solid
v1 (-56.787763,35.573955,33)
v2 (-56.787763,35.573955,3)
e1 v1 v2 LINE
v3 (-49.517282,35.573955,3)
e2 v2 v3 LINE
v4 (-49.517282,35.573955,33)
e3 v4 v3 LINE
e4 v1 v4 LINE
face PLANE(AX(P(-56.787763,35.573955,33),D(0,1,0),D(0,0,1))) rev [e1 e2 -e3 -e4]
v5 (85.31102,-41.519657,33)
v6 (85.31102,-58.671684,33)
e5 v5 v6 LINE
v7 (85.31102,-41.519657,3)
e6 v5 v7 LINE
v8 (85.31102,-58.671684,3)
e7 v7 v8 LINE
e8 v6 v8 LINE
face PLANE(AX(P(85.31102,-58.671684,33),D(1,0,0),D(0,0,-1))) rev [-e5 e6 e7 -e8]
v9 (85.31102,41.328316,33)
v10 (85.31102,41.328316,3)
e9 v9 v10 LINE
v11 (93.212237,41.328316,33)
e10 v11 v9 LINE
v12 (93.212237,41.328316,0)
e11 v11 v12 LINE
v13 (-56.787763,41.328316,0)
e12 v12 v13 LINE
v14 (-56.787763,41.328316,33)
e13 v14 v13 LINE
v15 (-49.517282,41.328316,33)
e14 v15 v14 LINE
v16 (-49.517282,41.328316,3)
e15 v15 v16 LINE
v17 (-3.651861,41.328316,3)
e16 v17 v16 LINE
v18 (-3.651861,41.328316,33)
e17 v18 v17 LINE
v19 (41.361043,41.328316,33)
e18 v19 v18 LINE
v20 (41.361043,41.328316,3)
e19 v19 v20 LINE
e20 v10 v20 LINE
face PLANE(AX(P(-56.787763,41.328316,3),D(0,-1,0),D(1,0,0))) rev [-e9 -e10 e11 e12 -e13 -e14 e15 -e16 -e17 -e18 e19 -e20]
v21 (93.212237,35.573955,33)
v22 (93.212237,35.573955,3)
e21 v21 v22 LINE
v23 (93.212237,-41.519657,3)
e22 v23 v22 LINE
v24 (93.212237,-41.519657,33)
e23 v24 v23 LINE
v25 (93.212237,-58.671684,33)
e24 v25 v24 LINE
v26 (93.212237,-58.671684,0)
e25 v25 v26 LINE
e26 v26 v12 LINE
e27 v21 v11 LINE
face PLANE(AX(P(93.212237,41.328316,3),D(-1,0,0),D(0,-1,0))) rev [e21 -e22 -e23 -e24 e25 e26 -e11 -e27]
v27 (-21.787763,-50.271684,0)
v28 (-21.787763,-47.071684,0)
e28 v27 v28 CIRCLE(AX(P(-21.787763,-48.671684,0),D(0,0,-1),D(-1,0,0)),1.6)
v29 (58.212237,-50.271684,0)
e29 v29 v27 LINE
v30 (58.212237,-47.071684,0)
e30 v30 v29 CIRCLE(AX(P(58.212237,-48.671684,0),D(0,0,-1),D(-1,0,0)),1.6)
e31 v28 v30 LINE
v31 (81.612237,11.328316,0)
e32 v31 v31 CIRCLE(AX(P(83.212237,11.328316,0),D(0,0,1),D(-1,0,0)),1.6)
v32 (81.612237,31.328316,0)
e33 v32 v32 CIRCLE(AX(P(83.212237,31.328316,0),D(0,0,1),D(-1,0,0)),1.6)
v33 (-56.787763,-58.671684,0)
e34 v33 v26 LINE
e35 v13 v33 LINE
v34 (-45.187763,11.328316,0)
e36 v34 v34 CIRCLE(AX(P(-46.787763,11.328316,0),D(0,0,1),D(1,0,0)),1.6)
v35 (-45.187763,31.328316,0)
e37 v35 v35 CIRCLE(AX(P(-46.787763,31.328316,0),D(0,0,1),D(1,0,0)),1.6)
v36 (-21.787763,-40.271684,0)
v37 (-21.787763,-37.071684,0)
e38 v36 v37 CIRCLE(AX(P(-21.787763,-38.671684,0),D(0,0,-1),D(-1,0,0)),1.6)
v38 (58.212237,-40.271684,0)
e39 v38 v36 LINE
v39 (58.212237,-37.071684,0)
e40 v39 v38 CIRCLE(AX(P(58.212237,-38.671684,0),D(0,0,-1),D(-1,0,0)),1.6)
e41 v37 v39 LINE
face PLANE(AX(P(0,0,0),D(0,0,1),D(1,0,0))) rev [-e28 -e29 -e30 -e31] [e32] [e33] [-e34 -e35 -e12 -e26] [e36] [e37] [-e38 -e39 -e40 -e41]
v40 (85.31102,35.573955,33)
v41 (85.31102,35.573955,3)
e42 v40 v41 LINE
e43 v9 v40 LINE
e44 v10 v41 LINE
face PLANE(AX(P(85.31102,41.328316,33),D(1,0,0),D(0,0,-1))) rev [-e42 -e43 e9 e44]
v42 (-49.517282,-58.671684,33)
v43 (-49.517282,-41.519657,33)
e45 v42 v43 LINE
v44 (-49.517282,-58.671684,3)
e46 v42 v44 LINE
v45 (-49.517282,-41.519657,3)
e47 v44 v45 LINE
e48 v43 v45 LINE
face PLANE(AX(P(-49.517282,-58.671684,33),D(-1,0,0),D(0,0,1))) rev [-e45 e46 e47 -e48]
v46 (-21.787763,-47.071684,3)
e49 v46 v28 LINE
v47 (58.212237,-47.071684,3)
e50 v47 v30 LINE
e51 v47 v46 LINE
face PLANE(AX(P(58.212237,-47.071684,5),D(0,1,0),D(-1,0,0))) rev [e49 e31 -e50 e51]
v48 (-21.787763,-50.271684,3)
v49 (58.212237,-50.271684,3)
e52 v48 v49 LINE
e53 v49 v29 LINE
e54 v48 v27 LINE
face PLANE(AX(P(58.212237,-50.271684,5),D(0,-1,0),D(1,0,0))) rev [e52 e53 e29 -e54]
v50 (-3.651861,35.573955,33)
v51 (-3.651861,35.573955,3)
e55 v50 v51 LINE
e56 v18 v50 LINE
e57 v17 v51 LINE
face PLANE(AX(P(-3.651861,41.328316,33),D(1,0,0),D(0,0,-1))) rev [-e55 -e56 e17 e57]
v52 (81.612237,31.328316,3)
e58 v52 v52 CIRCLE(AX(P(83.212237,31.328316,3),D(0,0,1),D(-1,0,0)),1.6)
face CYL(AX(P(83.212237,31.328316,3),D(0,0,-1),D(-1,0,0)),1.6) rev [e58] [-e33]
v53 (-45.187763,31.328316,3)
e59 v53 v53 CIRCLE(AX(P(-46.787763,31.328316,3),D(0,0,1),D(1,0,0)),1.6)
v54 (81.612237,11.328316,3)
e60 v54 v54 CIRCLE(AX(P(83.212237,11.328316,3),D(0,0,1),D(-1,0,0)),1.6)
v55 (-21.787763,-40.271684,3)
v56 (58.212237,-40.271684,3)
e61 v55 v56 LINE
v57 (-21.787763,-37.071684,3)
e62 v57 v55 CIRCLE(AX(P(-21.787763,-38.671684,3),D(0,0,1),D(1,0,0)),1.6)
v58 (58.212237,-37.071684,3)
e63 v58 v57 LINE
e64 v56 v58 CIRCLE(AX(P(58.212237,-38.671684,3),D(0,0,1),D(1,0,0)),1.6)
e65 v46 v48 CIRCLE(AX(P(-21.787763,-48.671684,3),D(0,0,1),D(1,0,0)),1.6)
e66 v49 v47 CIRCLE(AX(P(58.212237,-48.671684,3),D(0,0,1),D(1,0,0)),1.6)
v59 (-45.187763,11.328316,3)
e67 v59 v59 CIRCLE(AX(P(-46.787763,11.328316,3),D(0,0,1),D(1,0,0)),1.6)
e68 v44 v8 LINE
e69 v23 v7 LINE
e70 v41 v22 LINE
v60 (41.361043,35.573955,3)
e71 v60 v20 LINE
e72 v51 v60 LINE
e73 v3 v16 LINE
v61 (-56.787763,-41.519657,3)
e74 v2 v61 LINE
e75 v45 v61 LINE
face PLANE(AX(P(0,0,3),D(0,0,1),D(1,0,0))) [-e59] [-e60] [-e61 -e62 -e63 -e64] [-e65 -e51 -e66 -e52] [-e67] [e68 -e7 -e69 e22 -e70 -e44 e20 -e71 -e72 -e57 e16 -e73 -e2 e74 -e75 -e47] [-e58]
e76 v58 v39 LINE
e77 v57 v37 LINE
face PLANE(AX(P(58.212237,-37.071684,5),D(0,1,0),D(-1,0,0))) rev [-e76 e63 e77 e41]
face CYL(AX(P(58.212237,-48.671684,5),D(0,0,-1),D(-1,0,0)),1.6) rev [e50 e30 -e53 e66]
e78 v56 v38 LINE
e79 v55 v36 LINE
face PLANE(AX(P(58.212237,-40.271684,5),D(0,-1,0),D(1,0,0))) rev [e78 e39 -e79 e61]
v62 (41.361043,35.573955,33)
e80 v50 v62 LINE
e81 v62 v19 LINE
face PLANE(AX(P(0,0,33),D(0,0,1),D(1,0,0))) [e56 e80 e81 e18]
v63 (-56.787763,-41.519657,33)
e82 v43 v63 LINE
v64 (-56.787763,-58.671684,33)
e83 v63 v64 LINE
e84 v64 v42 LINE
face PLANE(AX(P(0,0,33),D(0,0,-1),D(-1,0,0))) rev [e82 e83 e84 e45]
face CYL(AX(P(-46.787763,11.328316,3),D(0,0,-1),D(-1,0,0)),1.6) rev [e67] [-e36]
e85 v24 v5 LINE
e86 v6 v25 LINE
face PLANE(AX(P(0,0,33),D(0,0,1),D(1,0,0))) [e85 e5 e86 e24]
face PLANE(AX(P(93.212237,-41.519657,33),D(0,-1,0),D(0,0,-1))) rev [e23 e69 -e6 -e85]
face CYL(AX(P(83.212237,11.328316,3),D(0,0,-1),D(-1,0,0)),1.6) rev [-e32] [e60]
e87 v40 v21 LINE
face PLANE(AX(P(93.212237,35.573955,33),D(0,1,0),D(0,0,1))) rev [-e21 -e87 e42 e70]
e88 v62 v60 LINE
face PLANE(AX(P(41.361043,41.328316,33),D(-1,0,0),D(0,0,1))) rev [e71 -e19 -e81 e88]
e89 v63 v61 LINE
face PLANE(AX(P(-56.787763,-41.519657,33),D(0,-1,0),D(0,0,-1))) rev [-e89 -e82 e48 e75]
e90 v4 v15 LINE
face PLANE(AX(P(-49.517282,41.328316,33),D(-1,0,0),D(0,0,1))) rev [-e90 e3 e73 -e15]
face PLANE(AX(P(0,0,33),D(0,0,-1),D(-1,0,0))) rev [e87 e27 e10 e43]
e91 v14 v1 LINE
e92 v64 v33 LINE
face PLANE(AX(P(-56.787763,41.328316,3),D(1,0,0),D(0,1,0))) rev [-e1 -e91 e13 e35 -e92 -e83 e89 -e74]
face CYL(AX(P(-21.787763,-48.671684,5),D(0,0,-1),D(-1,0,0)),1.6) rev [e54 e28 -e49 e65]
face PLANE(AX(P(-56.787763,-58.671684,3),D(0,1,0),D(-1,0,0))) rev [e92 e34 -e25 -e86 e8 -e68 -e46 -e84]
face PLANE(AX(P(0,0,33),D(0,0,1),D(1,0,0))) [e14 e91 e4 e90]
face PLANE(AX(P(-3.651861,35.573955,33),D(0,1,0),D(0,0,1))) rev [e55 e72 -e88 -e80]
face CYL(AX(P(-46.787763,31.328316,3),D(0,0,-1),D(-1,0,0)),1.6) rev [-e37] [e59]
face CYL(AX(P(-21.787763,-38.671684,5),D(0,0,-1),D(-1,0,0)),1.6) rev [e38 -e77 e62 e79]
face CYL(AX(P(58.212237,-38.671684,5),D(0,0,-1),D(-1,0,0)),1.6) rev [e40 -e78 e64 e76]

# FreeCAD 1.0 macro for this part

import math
import FreeCAD as App
import Part
import Sketcher

doc = App.newDocument("Part")
body = doc.addObject("PartDesign::Body", "Body")

# Sketch on XY plane
sketch1 = body.newObject("Sketcher::SketchObject", "Sketch")
sketch1.AttachmentSupport = (doc.getObject("XY_Plane"), [""])
sketch1.MapMode = "FlatFace"
sketch1.addGeometry([
    Part.LineSegment(App.Vector(-56.8, 41.3, 0), App.Vector(-56.8, -58.7, 0)),  # 0
    Part.LineSegment(App.Vector(-56.8, -58.7, 0), App.Vector(93.2, -58.7, 0)),  # 1
    Part.LineSegment(App.Vector(93.2, -58.7, 0), App.Vector(93.2, 41.3, 0)),  # 2
    Part.LineSegment(App.Vector(93.2, 41.3, 0), App.Vector(-56.8, 41.3, 0)),  # 3
    Part.Circle(App.Vector(-46.8, 11.3, 0), App.Vector(0, 0, 1), 1.6),  # 4
    Part.Circle(App.Vector(83.2, 11.3, 0), App.Vector(0, 0, 1), 1.6),  # 5
    Part.Circle(App.Vector(-46.8, 31.3, 0), App.Vector(0, 0, 1), 1.6),  # 6
    Part.Circle(App.Vector(83.2, 31.3, 0), App.Vector(0, 0, 1), 1.6),  # 7
], False)
sketch1.addConstraint([
    Sketcher.Constraint("Coincident", 0, 2, 1, 1),
    Sketcher.Constraint("Coincident", 1, 2, 2, 1),
    Sketcher.Constraint("Coincident", 2, 2, 3, 1),
    Sketcher.Constraint("Coincident", 3, 2, 0, 1),
    Sketcher.Constraint("Vertical", 0),
    Sketcher.Constraint("Horizontal", 1),
    Sketcher.Constraint("Vertical", 2),
    Sketcher.Constraint("Horizontal", 3),
    Sketcher.Constraint("Equal", 4, 5),
    Sketcher.Constraint("Equal", 5, 6),
    Sketcher.Constraint("Equal", 6, 7),
    Sketcher.Constraint("Horizontal", 4, 3, 5, 3),
    Sketcher.Constraint("Horizontal", 6, 3, 7, 3),
    Sketcher.Constraint("Vertical", 4, 3, 6, 3),
    Sketcher.Constraint("Vertical", 5, 3, 7, 3),
    Sketcher.Constraint("Diameter", 4, 3.2),
    Sketcher.Constraint("DistanceX", 1, 1, 1, 2, 150.0),
    Sketcher.Constraint("DistanceY", 0, 2, 0, 1, 100.0),
    Sketcher.Constraint("DistanceX", 4, 3, 5, 3, 130.0),
    Sketcher.Constraint("DistanceY", 4, 3, 6, 3, 20.0),
    Sketcher.Constraint("DistanceX", 0, 2, 4, 3, 10.0),
    Sketcher.Constraint("DistanceY", 0, 2, 4, 3, 70.0),
    Sketcher.Constraint("DistanceX", 4, 3, -1, 1, 46.787763),
    Sketcher.Constraint("DistanceY", -1, 1, 4, 3, 11.328316),
])
pad1 = body.newObject("PartDesign::Pad", "Pad")
pad1.Profile = sketch1
pad1.Length = 3

# Sketch on XY plane
sketch2 = body.newObject("Sketcher::SketchObject", "Sketch001")
sketch2.AttachmentSupport = (doc.getObject("XY_Plane"), [""])
sketch2.MapMode = "FlatFace"
sketch2.AttachmentOffset = App.Placement(App.Vector(0, 0, 3), App.Rotation())
sketch2.addGeometry([
    Part.LineSegment(App.Vector(-4, 41, 0), App.Vector(-4, 36, 0)),  # 0
    Part.LineSegment(App.Vector(-4, 36, 0), App.Vector(41, 36, 0)),  # 1
    Part.LineSegment(App.Vector(41, 36, 0), App.Vector(41, 41, 0)),  # 2
    Part.LineSegment(App.Vector(41, 41, 0), App.Vector(-4, 41, 0)),  # 3
    Part.LineSegment(App.Vector(-57, 41, 0), App.Vector(-57, 36, 0)),  # 4
    Part.LineSegment(App.Vector(-57, 36, 0), App.Vector(-50, 36, 0)),  # 5
    Part.LineSegment(App.Vector(-50, 36, 0), App.Vector(-50, 41, 0)),  # 6
    Part.LineSegment(App.Vector(-50, 41, 0), App.Vector(-57, 41, 0)),  # 7
    Part.LineSegment(App.Vector(85, 41, 0), App.Vector(85, 36, 0)),  # 8
    Part.LineSegment(App.Vector(85, 36, 0), App.Vector(93, 36, 0)),  # 9
    Part.LineSegment(App.Vector(93, 36, 0), App.Vector(93, 41, 0)),  # 10
    Part.LineSegment(App.Vector(93, 41, 0), App.Vector(85, 41, 0)),  # 11
    Part.LineSegment(App.Vector(85, -42, 0), App.Vector(85, -59, 0)),  # 12
    Part.LineSegment(App.Vector(85, -59, 0), App.Vector(93, -59, 0)),  # 13
    Part.LineSegment(App.Vector(93, -59, 0), App.Vector(93, -42, 0)),  # 14
    Part.LineSegment(App.Vector(93, -42, 0), App.Vector(85, -42, 0)),  # 15
    Part.LineSegment(App.Vector(-57, -42, 0), App.Vector(-57, -59, 0)),  # 16
    Part.LineSegment(App.Vector(-57, -59, 0), App.Vector(-50, -59, 0)),  # 17
    Part.LineSegment(App.Vector(-50, -59, 0), App.Vector(-50, -42, 0)),  # 18
    Part.LineSegment(App.Vector(-50, -42, 0), App.Vector(-57, -42, 0)),  # 19
], False)
sketch2.addConstraint([
    Sketcher.Constraint("Coincident", 0, 2, 1, 1),
    Sketcher.Constraint("Coincident", 1, 2, 2, 1),
    Sketcher.Constraint("Coincident", 2, 2, 3, 1),
    Sketcher.Constraint("Coincident", 3, 2, 0, 1),
    Sketcher.Constraint("Coincident", 4, 2, 5, 1),
    Sketcher.Constraint("Coincident", 5, 2, 6, 1),
    Sketcher.Constraint("Coincident", 6, 2, 7, 1),
    Sketcher.Constraint("Coincident", 7, 2, 4, 1),
    Sketcher.Constraint("Coincident", 8, 2, 9, 1),
    Sketcher.Constraint("Coincident", 9, 2, 10, 1),
    Sketcher.Constraint("Coincident", 10, 2, 11, 1),
    Sketcher.Constraint("Coincident", 11, 2, 8, 1),
    Sketcher.Constraint("Coincident", 12, 2, 13, 1),
    Sketcher.Constraint("Coincident", 13, 2, 14, 1),
    Sketcher.Constraint("Coincident", 14, 2, 15, 1),
    Sketcher.Constraint("Coincident", 15, 2, 12, 1),
    Sketcher.Constraint("Coincident", 16, 2, 17, 1),
    Sketcher.Constraint("Coincident", 17, 2, 18, 1),
    Sketcher.Constraint("Coincident", 18, 2, 19, 1),
    Sketcher.Constraint("Coincident", 19, 2, 16, 1),
    Sketcher.Constraint("Vertical", 0),
    Sketcher.Constraint("Horizontal", 1),
    Sketcher.Constraint("Vertical", 2),
    Sketcher.Constraint("Horizontal", 3),
    Sketcher.Constraint("Vertical", 4),
    Sketcher.Constraint("Horizontal", 5),
    Sketcher.Constraint("Vertical", 6),
    Sketcher.Constraint("Horizontal", 7),
    Sketcher.Constraint("Vertical", 8),
    Sketcher.Constraint("Horizontal", 9),
    Sketcher.Constraint("Vertical", 10),
    Sketcher.Constraint("Horizontal", 11),
    Sketcher.Constraint("Vertical", 12),
    Sketcher.Constraint("Horizontal", 13),
    Sketcher.Constraint("Vertical", 14),
    Sketcher.Constraint("Horizontal", 15),
    Sketcher.Constraint("Vertical", 16),
    Sketcher.Constraint("Horizontal", 17),
    Sketcher.Constraint("Vertical", 18),
    Sketcher.Constraint("Horizontal", 19),
    Sketcher.Constraint("Horizontal", 1, 2, 4, 2),
    Sketcher.Constraint("Horizontal", 3, 2, 6, 2),
    Sketcher.Constraint("Horizontal", 5, 2, 8, 2),
    Sketcher.Constraint("Horizontal", 7, 2, 10, 2),
    Sketcher.Constraint("Horizontal", 13, 2, 16, 2),
    Sketcher.Constraint("Horizontal", 15, 2, 18, 2),
    Sketcher.Constraint("Vertical", 11, 2, 12, 2),
    Sketcher.Constraint("Vertical", 10, 2, 13, 2),
    Sketcher.Constraint("Vertical", 7, 2, 16, 2),
    Sketcher.Constraint("Vertical", 6, 2, 17, 2),
    Sketcher.Constraint("DistanceY", 12, 2, 11, 2, 100.0),
    Sketcher.Constraint("DistanceX", 5, 1, 5, 2, 7.270481),
    Sketcher.Constraint("DistanceY", 0, 2, 0, 1, 5.754361),
    Sketcher.Constraint("DistanceX", 4, 2, 0, 2, 53.135902),
    Sketcher.Constraint("DistanceX", 0, 2, 9, 2, 96.864098),
    Sketcher.Constraint("DistanceX", 1, 1, 1, 2, 45.012904),
    Sketcher.Constraint("DistanceX", 9, 1, 9, 2, 7.901217),
    Sketcher.Constraint("DistanceY", 12, 2, 12, 1, 17.152027),
    Sketcher.Constraint("DistanceX", 0, 2, -1, 1, 3.651861),
    Sketcher.Constraint("DistanceY", -1, 1, 0, 2, 35.573955),
])
pad2 = body.newObject("PartDesign::Pad", "Pad001")
pad2.Profile = sketch2
pad2.Length = 30

# Sketch on XY plane
sketch3 = body.newObject("Sketcher::SketchObject", "Sketch002")
sketch3.AttachmentSupport = (doc.getObject("XY_Plane"), [""])
sketch3.MapMode = "FlatFace"
sketch3.addGeometry([
    Part.LineSegment(App.Vector(-21.8, -37.1, 0), App.Vector(58.2, -37.1, 0)),  # 0
    Part.ArcOfCircle(Part.Circle(App.Vector(58.2, -38.7, 0), App.Vector(0, 0, 1), 1.6), math.radians(-90), math.radians(90)),  # 1
    Part.LineSegment(App.Vector(58.2, -40.3, 0), App.Vector(-21.8, -40.3, 0)),  # 2
    Part.ArcOfCircle(Part.Circle(App.Vector(-21.8, -38.7, 0), App.Vector(0, 0, 1), 1.6), math.radians(90), math.radians(270)),  # 3
    Part.LineSegment(App.Vector(-21.8, -47.1, 0), App.Vector(58.2, -47.1, 0)),  # 4
    Part.ArcOfCircle(Part.Circle(App.Vector(58.2, -48.7, 0), App.Vector(0, 0, 1), 1.6), math.radians(-90), math.radians(90)),  # 5
    Part.LineSegment(App.Vector(58.2, -50.3, 0), App.Vector(-21.8, -50.3, 0)),  # 6
    Part.ArcOfCircle(Part.Circle(App.Vector(-21.8, -48.7, 0), App.Vector(0, 0, 1), 1.6), math.radians(90), math.radians(270)),  # 7
], False)
sketch3.addConstraint([
    Sketcher.Constraint("Tangent", 0, 2, 1, 2),
    Sketcher.Constraint("Tangent", 1, 1, 2, 1),
    Sketcher.Constraint("Tangent", 2, 2, 3, 2),
    Sketcher.Constraint("Tangent", 3, 1, 0, 1),
    Sketcher.Constraint("Tangent", 4, 2, 5, 2),
    Sketcher.Constraint("Tangent", 5, 1, 6, 1),
    Sketcher.Constraint("Tangent", 6, 2, 7, 2),
    Sketcher.Constraint("Tangent", 7, 1, 4, 1),
    Sketcher.Constraint("Horizontal", 0),
    Sketcher.Constraint("Horizontal", 2),
    Sketcher.Constraint("Horizontal", 4),
    Sketcher.Constraint("Horizontal", 6),
    Sketcher.Constraint("Equal", 3, 5),
    Sketcher.Constraint("Vertical", 1, 3, 5, 3),
    Sketcher.Constraint("Vertical", 3, 3, 7, 3),
    Sketcher.Constraint("Radius", 1, 1.6),
    Sketcher.Constraint("DistanceX", 0, 1, 0, 2, 80.0),
    Sketcher.Constraint("DistanceY", 5, 3, 1, 3, 10.0),
    Sketcher.Constraint("DistanceX", -1, 1, 1, 3, 58.212237),
    Sketcher.Constraint("DistanceY", 1, 3, -1, 1, 38.671684),
])
pocket1 = body.newObject("PartDesign::Pocket", "Pocket")
pocket1.Profile = sketch3
pocket1.Length = 5
pocket1.Reversed = True

doc.recompute()
